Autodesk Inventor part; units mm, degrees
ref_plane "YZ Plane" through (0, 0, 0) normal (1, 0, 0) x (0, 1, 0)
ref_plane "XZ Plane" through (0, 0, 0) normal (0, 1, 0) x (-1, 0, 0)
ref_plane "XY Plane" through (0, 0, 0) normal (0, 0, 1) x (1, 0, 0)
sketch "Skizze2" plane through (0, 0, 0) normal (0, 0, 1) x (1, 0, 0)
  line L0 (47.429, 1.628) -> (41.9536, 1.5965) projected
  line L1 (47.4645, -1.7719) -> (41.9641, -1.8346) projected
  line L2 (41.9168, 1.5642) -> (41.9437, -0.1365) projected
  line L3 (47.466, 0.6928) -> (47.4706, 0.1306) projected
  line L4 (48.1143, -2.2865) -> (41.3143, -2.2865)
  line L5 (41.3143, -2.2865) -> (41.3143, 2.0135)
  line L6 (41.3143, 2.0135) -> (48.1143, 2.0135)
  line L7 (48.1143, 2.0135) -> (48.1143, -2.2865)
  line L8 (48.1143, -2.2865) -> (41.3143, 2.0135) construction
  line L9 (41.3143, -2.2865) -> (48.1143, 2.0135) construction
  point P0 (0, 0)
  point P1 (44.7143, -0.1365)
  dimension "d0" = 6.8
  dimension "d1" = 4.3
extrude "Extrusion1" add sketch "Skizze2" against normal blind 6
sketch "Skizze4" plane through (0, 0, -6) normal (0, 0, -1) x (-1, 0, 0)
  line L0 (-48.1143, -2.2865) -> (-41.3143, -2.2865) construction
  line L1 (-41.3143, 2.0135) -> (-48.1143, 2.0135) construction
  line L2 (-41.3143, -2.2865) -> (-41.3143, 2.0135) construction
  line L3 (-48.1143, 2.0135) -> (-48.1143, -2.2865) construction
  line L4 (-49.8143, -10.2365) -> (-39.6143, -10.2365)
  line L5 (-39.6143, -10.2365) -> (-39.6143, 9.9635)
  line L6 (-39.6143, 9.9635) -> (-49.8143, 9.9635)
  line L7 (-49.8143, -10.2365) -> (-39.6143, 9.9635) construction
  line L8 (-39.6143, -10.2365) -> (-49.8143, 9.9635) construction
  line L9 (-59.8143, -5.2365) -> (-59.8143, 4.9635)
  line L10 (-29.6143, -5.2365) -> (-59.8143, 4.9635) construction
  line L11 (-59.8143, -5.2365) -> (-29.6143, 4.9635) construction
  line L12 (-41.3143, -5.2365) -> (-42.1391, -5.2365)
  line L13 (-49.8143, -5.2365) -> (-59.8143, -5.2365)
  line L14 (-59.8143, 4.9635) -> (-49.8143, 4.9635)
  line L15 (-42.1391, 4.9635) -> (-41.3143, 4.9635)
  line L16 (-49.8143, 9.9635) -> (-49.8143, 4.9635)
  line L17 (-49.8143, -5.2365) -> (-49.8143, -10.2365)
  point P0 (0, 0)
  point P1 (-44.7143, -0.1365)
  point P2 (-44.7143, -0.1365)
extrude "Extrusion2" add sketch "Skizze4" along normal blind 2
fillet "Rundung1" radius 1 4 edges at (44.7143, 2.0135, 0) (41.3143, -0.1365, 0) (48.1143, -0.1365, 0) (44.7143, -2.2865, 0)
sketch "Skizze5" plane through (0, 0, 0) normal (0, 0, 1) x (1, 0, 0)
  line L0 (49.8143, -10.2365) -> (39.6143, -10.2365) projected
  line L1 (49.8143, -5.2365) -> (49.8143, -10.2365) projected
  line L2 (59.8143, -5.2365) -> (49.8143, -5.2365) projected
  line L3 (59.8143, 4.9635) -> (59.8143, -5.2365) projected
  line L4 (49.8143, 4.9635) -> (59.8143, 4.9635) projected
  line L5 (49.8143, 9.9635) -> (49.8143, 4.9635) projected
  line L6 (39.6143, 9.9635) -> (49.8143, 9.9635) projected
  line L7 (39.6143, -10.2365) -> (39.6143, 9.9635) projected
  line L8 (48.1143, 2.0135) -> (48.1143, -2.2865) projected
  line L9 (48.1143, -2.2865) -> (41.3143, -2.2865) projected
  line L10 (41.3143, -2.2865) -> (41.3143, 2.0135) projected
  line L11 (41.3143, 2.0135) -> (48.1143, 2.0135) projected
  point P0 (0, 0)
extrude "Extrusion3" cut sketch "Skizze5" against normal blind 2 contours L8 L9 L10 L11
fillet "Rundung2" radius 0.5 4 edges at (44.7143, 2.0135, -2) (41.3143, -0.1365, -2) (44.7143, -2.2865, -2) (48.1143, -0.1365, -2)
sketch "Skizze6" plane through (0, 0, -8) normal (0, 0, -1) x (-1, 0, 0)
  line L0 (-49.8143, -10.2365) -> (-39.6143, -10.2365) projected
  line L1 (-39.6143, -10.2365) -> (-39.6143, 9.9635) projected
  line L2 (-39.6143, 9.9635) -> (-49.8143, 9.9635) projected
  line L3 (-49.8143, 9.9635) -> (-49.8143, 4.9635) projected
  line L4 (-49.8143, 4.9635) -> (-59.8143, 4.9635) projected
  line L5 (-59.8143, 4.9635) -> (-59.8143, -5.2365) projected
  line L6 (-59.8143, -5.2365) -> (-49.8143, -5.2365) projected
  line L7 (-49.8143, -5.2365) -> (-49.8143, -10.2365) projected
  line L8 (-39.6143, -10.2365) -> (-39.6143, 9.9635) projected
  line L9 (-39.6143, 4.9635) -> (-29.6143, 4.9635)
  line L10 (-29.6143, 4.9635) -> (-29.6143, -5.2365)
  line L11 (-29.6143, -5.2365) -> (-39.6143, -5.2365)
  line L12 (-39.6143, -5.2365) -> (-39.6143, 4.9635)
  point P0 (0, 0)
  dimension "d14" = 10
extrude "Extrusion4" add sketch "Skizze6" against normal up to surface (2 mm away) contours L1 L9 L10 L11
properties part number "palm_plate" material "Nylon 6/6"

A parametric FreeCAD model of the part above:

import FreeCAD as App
import Part
import Sketcher
from FreeCAD import Vector
Q = App.Units.Quantity


def edges_at(feature, points):
    """Names of the edges that pass closest to the given points."""
    edges = feature.Shape.Edges
    near = lambda p: min(range(len(edges)), key=lambda i: edges[i].distToShape(Part.Vertex(*p))[0])
    return sorted({f"Edge{near(p) + 1}" for p in points})


def add_polygon(sketch, points):
    """Adds a closed chain of lines whose ends are joined by coincident constraints."""
    first, n = sketch.GeometryCount, len(points)
    for a, b in zip(points, points[1:] + points[:1]):
        sketch.addGeometry(Part.LineSegment(App.Vector(*a, 0), App.Vector(*b, 0)), False)
    for i in range(n):
        sketch.addConstraint(Sketcher.Constraint("Coincident", first + i, 2, first + (i + 1) % n, 1))

doc = App.newDocument("Part")
body = doc.addObject("PartDesign::Body", "Body")

# Sketch on XY plane
sketch1 = body.newObject("Sketcher::SketchObject", "Sketch")
sketch1.AttachmentSupport = (doc.getObject("XY_Plane"), [""])
sketch1.MapMode = "FlatFace"
add_polygon(sketch1, [(41.3143, -2.2865), (48.1143, -2.2865), (48.1143, 2.0135), (41.3143, 2.0135)])  # lines 0-3
sketch1.addConstraint(Sketcher.Constraint("Horizontal", 0))
sketch1.addConstraint(Sketcher.Constraint("Vertical", 1))
sketch1.addConstraint(Sketcher.Constraint("Horizontal", 2))
sketch1.addConstraint(Sketcher.Constraint("Vertical", 3))
sketch1.addConstraint(Sketcher.Constraint("DistanceX", 0, 1, 0, 2, Q("6.8 mm")))
sketch1.addConstraint(Sketcher.Constraint("DistanceY", 1, 1, 1, 2, Q("4.3 mm")))
sketch1.addConstraint(Sketcher.Constraint("DistanceX", -1, 1, 0, 2, Q("48.1143 mm")))
sketch1.addConstraint(Sketcher.Constraint("DistanceY", 0, 2, -1, 1, Q("2.2865 mm")))
pad1 = body.newObject("PartDesign::Pad", "Pad")
pad1.Profile = sketch1
pad1.Length = 6
pad1.Reversed = True

# Sketch on XY plane
sketch2 = body.newObject("Sketcher::SketchObject", "Sketch001")
sketch2.AttachmentSupport = (doc.getObject("XY_Plane"), [""])
sketch2.MapMode = "FlatFace"
sketch2.AttachmentOffset = App.Placement(Vector(0, 0, -6), App.Rotation())
add_polygon(sketch2, [(49.8143, -5.2365), (49.8143, -10.2365), (39.6143, -10.2365), (39.6143, 9.9635), (49.8143, 9.9635), (49.8143, 4.9635), (59.8143, 4.9635), (59.8143, -5.2365)])  # lines 0-7
sketch2.addConstraint(Sketcher.Constraint("Vertical", 0))
sketch2.addConstraint(Sketcher.Constraint("Horizontal", 1))
sketch2.addConstraint(Sketcher.Constraint("Vertical", 2))
sketch2.addConstraint(Sketcher.Constraint("Horizontal", 3))
sketch2.addConstraint(Sketcher.Constraint("Vertical", 4))
sketch2.addConstraint(Sketcher.Constraint("Horizontal", 5))
sketch2.addConstraint(Sketcher.Constraint("Vertical", 6))
sketch2.addConstraint(Sketcher.Constraint("Horizontal", 7))
sketch2.addConstraint(Sketcher.Constraint("Vertical", 0, 2, 3, 2))
sketch2.addConstraint(Sketcher.Constraint("Equal", 0, 4))
sketch2.addConstraint(Sketcher.Constraint("Equal", 3, 6))
sketch2.addConstraint(Sketcher.Constraint("DistanceX", 5, 1, 5, 2, Q("10 mm")))
sketch2.addConstraint(Sketcher.Constraint("DistanceY", 0, 2, 0, 1, Q("5 mm")))
sketch2.addConstraint(Sketcher.Constraint("DistanceX", 1, 2, 1, 1, Q("10.2 mm")))
sketch2.addConstraint(Sketcher.Constraint("DistanceX", -1, 1, 0, 2, Q("49.8143 mm")))
sketch2.addConstraint(Sketcher.Constraint("DistanceY", 0, 2, -1, 1, Q("10.2365 mm")))
pad2 = body.newObject("PartDesign::Pad", "Pad001")
pad2.Profile = sketch2
pad2.Length = 2
pad2.Reversed = True
doc.recompute()

fillet = body.newObject("PartDesign::Fillet", "Fillet")
fillet.Base = (pad2, edges_at(pad2, [
    (44.714, 2.014, 0),
    (41.314, -0.137, 0),
    (48.114, -0.137, 0),
    (44.714, -2.287, 0),
]))
fillet.Radius = 1

# Sketch on XY plane
sketch3 = body.newObject("Sketcher::SketchObject", "Sketch002")
sketch3.AttachmentSupport = (doc.getObject("XY_Plane"), [""])
sketch3.MapMode = "FlatFace"
add_polygon(sketch3, [(48.1143, -2.2865), (48.1143, 2.0135), (41.3143, 2.0135), (41.3143, -2.2865)])  # lines 0-3
sketch3.addConstraint(Sketcher.Constraint("Vertical", 0))
sketch3.addConstraint(Sketcher.Constraint("Horizontal", 1))
sketch3.addConstraint(Sketcher.Constraint("Vertical", 2))
sketch3.addConstraint(Sketcher.Constraint("Horizontal", 3))
sketch3.addConstraint(Sketcher.Constraint("DistanceX", 1, 2, 1, 1, Q("6.8 mm")))
sketch3.addConstraint(Sketcher.Constraint("DistanceY", 0, 1, 0, 2, Q("4.3 mm")))
sketch3.addConstraint(Sketcher.Constraint("DistanceX", -1, 1, 0, 2, Q("48.1143 mm")))
sketch3.addConstraint(Sketcher.Constraint("DistanceY", -1, 1, 0, 2, Q("2.0135 mm")))
pocket1 = body.newObject("PartDesign::Pocket", "Pocket")
pocket1.Profile = sketch3
pocket1.Length = 2
doc.recompute()

fillet2 = body.newObject("PartDesign::Fillet", "Fillet001")
fillet2.Base = (pocket1, edges_at(pocket1, [
    (44.714, 2.014, -2),
    (41.314, -0.137, -2),
    (44.714, -2.287, -2),
    (48.114, -0.137, -2),
]))
fillet2.Radius = 0.5

# Sketch on XY plane
sketch4 = body.newObject("Sketcher::SketchObject", "Sketch003")
sketch4.AttachmentSupport = (doc.getObject("XY_Plane"), [""])
sketch4.MapMode = "FlatFace"
sketch4.AttachmentOffset = App.Placement(Vector(0, 0, -8), App.Rotation())
add_polygon(sketch4, [(39.6143, 4.9635), (39.6143, -5.2365), (29.6143, -5.2365), (29.6143, 4.9635)])  # lines 0-3
sketch4.addConstraint(Sketcher.Constraint("Vertical", 0))
sketch4.addConstraint(Sketcher.Constraint("Horizontal", 1))
sketch4.addConstraint(Sketcher.Constraint("Vertical", 2))
sketch4.addConstraint(Sketcher.Constraint("Horizontal", 3))
sketch4.addConstraint(Sketcher.Constraint("DistanceX", 1, 2, 1, 1, Q("10 mm")))
sketch4.addConstraint(Sketcher.Constraint("DistanceY", 0, 2, 0, 1, Q("10.2 mm")))
sketch4.addConstraint(Sketcher.Constraint("DistanceX", -1, 1, 0, 2, Q("39.6143 mm")))
sketch4.addConstraint(Sketcher.Constraint("DistanceY", 0, 2, -1, 1, Q("5.2365 mm")))
pad3 = body.newObject("PartDesign::Pad", "Pad002")
pad3.Profile = sketch4
pad3.Length = 2

doc.recompute()
